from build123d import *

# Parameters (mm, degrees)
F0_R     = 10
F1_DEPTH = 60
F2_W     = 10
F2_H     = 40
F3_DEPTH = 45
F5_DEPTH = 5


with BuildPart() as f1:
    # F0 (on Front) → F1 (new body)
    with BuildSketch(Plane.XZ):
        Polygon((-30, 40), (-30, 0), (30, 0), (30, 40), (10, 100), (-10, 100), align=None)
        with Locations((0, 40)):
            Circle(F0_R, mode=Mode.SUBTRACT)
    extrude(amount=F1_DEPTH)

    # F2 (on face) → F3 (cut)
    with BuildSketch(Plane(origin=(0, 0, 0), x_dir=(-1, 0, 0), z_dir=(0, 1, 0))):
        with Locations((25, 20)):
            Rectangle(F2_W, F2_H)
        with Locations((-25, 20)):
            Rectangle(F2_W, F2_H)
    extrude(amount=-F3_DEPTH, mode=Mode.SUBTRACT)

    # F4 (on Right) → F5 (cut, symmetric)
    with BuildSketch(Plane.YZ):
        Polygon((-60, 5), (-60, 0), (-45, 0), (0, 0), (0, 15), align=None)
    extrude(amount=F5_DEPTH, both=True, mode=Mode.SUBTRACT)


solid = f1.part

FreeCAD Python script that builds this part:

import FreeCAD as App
import Part
import Sketcher

V = App.Vector


def add_polygon(sketch, points):
    """Adds a closed chain of lines whose ends are joined by coincident constraints."""
    first, n = sketch.GeometryCount, len(points)
    for a, b in zip(points, points[1:] + points[:1]):
        sketch.addGeometry(Part.LineSegment(App.Vector(*a, 0), App.Vector(*b, 0)), False)
    for i in range(n):
        sketch.addConstraint(Sketcher.Constraint("Coincident", first + i, 2, first + (i + 1) % n, 1))

doc = App.newDocument("Part")
body = doc.addObject("PartDesign::Body", "Body")

# Sketch on XZ plane
sketch1 = body.newObject("Sketcher::SketchObject", "Sketch")
sketch1.AttachmentSupport = (doc.getObject("XZ_Plane"), [""])
sketch1.MapMode = "FlatFace"
add_polygon(sketch1, [(-30, 40), (-30, 0), (30, 0), (30, 40), (10, 100), (-10, 100)])  # lines 0-5
sketch1.addGeometry(Part.Circle(V(0, 40, 0), V(0, 0, 1), 10), False)  # 6
sketch1.addConstraint(Sketcher.Constraint("Vertical", 0))
sketch1.addConstraint(Sketcher.Constraint("Horizontal", 1))
sketch1.addConstraint(Sketcher.Constraint("Vertical", 2))
sketch1.addConstraint(Sketcher.Constraint("Horizontal", 4))
sketch1.addConstraint(Sketcher.Constraint("Symmetric", 0, 2, 1, 2, -1, 1))
sketch1.addConstraint(Sketcher.Constraint("PointOnObject", 6, 3, -2))
sketch1.addConstraint(Sketcher.Constraint("Horizontal", 6, 3, 2, 2))
sketch1.addConstraint(Sketcher.Constraint("Horizontal", 2, 2, 5, 2))
sketch1.addConstraint(Sketcher.Constraint("Equal", 3, 5))
sketch1.addConstraint(Sketcher.Constraint("Diameter", 6, 20.0))
sketch1.addConstraint(Sketcher.Constraint("DistanceX", 1, 1, 1, 2, 60.0))
sketch1.addConstraint(Sketcher.Constraint("DistanceX", 4, 2, 4, 1, 20.0))
sketch1.addConstraint(Sketcher.Constraint("DistanceY", 0, 2, 0, 1, 40.0))
sketch1.addConstraint(Sketcher.Constraint("DistanceY", -1, 1, 3, 2, 100.0))
pad1 = body.newObject("PartDesign::Pad", "Pad")
pad1.Profile = sketch1
pad1.Length = 60

# Sketch on XZ plane
sketch2 = body.newObject("Sketcher::SketchObject", "Sketch001")
sketch2.AttachmentSupport = (doc.getObject("XZ_Plane"), [""])
sketch2.MapMode = "FlatFace"
add_polygon(sketch2, [(-20, 40), (-20, 0), (-30, 0), (-30, 40)])  # lines 0-3
add_polygon(sketch2, [(30, 40), (30, 0), (20, 0), (20, 40)])  # lines 4-7
sketch2.addConstraint(Sketcher.Constraint("Vertical", 0))
sketch2.addConstraint(Sketcher.Constraint("Horizontal", 1))
sketch2.addConstraint(Sketcher.Constraint("Vertical", 2))
sketch2.addConstraint(Sketcher.Constraint("Horizontal", 3))
sketch2.addConstraint(Sketcher.Constraint("Vertical", 4))
sketch2.addConstraint(Sketcher.Constraint("Horizontal", 5))
sketch2.addConstraint(Sketcher.Constraint("Vertical", 6))
sketch2.addConstraint(Sketcher.Constraint("Horizontal", 7))
sketch2.addConstraint(Sketcher.Constraint("Symmetric", 1, 2, 4, 2, -1, 1))
sketch2.addConstraint(Sketcher.Constraint("Symmetric", 0, 2, 5, 2, -2))
sketch2.addConstraint(Sketcher.Constraint("Horizontal", 3, 2, 6, 2))
sketch2.addConstraint(Sketcher.Constraint("DistanceX", 1, 2, 1, 1, 10.0))
sketch2.addConstraint(Sketcher.Constraint("DistanceY", 0, 2, 0, 1, 40.0))
sketch2.addConstraint(Sketcher.Constraint("DistanceX", 0, 2, -1, 1, 20.0))
pocket1 = body.newObject("PartDesign::Pocket", "Pocket")
pocket1.Profile = sketch2
pocket1.Length = 45
pocket1.Reversed = True

# Sketch on YZ plane
sketch3 = body.newObject("Sketcher::SketchObject", "Sketch002")
sketch3.AttachmentSupport = (doc.getObject("YZ_Plane"), [""])
sketch3.MapMode = "FlatFace"
add_polygon(sketch3, [(-60, 5), (-60, 0), (0, 0), (0, 15)])  # lines 0-3
sketch3.addConstraint(Sketcher.Constraint("Vertical", 0))
sketch3.addConstraint(Sketcher.Constraint("Horizontal", 1))
sketch3.addConstraint(Sketcher.Constraint("Vertical", 2))
sketch3.addConstraint(Sketcher.Constraint("Coincident", 1, 2, -1, 1))
sketch3.addConstraint(Sketcher.Constraint("DistanceX", 1, 1, 1, 2, 60.0))
sketch3.addConstraint(Sketcher.Constraint("DistanceY", 0, 2, 0, 1, 5.0))
sketch3.addConstraint(Sketcher.Constraint("DistanceY", 2, 1, 2, 2, 15.0))
pocket2 = body.newObject("PartDesign::Pocket", "Pocket001")
pocket2.Profile = sketch3
pocket2.Length = 10
pocket2.Midplane = True

doc.recompute()
